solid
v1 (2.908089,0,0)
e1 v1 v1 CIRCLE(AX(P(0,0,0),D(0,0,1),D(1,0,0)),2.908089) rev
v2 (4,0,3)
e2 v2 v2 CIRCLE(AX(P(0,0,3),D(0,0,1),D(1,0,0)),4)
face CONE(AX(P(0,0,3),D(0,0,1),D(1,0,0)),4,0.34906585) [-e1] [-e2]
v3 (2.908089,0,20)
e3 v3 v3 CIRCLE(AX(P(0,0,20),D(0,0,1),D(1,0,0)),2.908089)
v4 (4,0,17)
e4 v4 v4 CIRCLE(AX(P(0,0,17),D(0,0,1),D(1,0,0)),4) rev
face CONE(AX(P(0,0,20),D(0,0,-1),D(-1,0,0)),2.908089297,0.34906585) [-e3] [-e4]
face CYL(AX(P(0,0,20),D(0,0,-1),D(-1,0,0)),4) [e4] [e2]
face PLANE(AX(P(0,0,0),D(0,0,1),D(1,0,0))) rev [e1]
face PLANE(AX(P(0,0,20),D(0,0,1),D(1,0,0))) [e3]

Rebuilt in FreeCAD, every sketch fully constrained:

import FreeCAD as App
import Part
import Sketcher

V = App.Vector
Q = App.Units.Quantity


def edges_at(feature, points):
    """Names of the edges that pass closest to the given points."""
    edges = feature.Shape.Edges
    near = lambda p: min(range(len(edges)), key=lambda i: edges[i].distToShape(Part.Vertex(*p))[0])
    return sorted({f"Edge{near(p) + 1}" for p in points})

doc = App.newDocument("Part")
body = doc.addObject("PartDesign::Body", "Body")

# Sketch on XY plane
sketch1 = body.newObject("Sketcher::SketchObject", "Sketch")
sketch1.AttachmentSupport = (doc.getObject("XY_Plane"), [""])
sketch1.MapMode = "FlatFace"
sketch1.addGeometry(Part.Circle(V(0, 0, 0), V(0, 0, 1), 4), False)
sketch1.addConstraint([
    Sketcher.Constraint("Coincident", 0, 3, -1, 1),
    Sketcher.Constraint("Diameter", 0, Q("8 mm")),
])
pad1 = body.newObject("PartDesign::Pad", "Pad")
pad1.Profile = sketch1
pad1.Length = 20
doc.recompute()

chamfer = body.newObject("PartDesign::Chamfer", "Chamfer")
chamfer.Base = (pad1, edges_at(pad1, [(-4, 0, 20)]))
chamfer.ChamferType = "Two distances"
chamfer.Size = 3
chamfer.Size2 = 1.091911
doc.recompute()

chamfer2 = body.newObject("PartDesign::Chamfer", "Chamfer001")
chamfer2.Base = (chamfer, edges_at(chamfer, [(-4, 0, 0)]))
chamfer2.ChamferType = "Two distances"
chamfer2.Size = 3
chamfer2.Size2 = 1.091911

doc.recompute()
